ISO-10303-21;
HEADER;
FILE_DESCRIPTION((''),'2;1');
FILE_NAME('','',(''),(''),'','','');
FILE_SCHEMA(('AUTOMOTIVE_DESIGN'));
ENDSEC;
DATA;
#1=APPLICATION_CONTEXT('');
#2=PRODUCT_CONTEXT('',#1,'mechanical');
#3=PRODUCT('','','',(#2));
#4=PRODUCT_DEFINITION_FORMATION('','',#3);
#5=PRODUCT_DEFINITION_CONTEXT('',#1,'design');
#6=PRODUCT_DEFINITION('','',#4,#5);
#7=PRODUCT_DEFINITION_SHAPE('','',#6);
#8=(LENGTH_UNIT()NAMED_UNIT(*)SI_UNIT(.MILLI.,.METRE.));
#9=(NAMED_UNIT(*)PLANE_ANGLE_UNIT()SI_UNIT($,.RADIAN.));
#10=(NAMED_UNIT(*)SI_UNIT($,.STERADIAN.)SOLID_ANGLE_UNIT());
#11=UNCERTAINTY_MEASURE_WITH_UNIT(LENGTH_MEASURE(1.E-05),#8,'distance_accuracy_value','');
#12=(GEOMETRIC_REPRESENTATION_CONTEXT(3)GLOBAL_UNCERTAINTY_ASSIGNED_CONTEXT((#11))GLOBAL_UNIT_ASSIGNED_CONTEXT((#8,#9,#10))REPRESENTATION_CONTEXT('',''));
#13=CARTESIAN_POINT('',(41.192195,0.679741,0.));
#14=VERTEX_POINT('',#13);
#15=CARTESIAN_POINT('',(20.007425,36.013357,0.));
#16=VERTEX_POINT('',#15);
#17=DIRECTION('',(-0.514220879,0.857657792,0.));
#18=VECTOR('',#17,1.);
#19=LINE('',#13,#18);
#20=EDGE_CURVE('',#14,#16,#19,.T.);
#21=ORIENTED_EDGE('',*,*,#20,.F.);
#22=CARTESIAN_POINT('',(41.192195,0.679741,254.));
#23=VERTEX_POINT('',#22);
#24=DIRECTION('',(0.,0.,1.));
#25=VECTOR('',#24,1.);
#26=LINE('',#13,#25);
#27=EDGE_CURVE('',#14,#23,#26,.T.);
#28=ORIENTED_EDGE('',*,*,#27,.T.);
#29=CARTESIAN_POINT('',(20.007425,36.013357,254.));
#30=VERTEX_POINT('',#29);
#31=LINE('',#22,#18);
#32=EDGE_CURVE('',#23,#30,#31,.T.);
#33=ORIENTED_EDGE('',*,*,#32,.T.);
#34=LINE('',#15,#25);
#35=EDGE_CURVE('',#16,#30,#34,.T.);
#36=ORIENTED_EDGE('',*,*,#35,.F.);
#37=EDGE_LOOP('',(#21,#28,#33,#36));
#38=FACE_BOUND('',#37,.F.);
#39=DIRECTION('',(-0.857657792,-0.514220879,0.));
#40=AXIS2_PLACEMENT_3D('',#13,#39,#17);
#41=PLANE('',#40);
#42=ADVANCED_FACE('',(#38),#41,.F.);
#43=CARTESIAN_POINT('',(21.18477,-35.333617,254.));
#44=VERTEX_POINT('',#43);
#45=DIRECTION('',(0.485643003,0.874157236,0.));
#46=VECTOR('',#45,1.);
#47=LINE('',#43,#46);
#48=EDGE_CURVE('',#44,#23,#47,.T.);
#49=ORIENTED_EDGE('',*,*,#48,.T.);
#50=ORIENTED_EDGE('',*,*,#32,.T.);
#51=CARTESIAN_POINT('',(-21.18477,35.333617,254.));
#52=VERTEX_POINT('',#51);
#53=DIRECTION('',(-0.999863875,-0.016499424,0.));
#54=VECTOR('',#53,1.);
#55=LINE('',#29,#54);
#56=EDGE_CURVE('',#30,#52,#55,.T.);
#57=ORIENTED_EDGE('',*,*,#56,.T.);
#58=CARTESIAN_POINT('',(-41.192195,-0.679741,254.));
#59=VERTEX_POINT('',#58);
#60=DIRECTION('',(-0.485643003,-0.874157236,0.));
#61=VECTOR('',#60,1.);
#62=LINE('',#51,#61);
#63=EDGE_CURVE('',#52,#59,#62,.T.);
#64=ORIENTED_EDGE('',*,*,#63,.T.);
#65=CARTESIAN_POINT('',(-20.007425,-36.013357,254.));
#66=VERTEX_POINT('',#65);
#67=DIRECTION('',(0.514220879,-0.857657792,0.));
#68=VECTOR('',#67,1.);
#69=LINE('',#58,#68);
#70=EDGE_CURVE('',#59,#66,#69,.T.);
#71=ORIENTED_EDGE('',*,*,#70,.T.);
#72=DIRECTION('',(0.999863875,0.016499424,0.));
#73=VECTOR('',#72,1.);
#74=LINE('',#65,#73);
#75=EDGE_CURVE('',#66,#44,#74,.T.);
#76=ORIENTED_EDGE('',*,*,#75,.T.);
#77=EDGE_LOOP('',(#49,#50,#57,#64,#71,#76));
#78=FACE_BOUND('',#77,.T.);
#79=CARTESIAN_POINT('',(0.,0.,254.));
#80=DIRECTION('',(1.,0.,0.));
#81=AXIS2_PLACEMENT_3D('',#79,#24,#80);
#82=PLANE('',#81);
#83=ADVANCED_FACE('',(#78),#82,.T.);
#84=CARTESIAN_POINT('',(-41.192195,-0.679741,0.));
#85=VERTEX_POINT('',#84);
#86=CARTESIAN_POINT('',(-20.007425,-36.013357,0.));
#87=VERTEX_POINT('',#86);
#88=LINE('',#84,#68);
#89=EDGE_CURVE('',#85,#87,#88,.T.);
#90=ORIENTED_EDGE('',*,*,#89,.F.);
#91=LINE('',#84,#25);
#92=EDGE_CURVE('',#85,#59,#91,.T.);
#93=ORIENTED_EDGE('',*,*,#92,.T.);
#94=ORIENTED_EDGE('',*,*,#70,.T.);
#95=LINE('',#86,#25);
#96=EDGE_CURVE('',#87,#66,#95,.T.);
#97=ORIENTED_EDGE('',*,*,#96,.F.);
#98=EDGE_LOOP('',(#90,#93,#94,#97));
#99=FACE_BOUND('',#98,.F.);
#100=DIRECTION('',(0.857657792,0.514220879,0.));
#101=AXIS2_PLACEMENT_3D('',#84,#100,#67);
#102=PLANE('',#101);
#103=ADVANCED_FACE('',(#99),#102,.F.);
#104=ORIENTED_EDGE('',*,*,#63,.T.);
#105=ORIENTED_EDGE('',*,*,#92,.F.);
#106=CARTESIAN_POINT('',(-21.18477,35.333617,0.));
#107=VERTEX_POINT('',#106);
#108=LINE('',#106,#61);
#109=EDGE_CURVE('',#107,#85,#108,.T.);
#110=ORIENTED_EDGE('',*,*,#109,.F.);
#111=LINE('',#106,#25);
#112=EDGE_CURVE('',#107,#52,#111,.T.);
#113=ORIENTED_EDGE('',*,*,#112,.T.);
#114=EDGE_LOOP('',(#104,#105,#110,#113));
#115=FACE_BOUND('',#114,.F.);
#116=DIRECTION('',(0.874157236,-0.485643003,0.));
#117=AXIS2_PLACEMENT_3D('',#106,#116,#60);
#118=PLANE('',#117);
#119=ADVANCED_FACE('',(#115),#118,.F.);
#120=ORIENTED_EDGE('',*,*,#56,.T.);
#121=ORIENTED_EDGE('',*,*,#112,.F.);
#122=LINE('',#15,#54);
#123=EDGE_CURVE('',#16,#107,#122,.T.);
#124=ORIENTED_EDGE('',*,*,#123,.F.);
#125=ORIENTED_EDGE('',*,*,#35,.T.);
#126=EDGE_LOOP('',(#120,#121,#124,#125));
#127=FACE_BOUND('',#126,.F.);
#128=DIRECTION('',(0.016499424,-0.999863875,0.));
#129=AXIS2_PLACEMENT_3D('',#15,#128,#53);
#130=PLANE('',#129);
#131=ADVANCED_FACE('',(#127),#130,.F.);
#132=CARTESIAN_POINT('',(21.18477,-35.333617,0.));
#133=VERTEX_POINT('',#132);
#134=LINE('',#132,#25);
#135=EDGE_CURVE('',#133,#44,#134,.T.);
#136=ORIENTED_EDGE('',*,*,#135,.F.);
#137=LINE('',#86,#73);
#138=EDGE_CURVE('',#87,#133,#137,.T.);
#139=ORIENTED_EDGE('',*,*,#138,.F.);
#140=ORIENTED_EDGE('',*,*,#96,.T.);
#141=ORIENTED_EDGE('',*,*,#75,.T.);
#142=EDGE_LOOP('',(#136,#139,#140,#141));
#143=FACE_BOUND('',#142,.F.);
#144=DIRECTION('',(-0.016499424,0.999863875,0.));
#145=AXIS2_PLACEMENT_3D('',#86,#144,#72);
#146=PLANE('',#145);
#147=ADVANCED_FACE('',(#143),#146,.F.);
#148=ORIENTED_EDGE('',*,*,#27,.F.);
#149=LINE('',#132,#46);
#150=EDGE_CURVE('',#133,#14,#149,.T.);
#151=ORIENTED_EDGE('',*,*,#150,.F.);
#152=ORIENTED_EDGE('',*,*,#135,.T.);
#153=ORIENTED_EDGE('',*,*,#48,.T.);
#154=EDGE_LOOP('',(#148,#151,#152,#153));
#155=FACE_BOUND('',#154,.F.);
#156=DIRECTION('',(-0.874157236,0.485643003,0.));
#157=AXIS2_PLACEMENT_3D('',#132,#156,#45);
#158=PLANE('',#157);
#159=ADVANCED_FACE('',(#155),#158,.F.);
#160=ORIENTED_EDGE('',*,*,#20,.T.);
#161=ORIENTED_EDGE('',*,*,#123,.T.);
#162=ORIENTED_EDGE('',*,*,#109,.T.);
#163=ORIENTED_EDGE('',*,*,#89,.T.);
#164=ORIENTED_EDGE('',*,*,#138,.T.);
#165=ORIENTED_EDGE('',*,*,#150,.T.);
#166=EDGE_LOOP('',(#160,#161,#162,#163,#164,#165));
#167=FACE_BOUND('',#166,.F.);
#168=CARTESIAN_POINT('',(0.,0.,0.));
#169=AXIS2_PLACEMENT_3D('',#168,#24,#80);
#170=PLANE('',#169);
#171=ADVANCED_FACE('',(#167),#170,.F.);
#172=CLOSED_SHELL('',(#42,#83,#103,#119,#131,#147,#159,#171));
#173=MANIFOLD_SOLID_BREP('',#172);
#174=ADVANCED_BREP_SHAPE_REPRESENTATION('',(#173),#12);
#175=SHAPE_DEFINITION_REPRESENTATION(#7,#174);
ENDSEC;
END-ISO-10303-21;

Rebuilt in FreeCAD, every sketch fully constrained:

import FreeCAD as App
import Part
import Sketcher
from FreeCAD import Vector
Q = App.Units.Quantity

doc = App.newDocument("Part")
body = doc.addObject("PartDesign::Body", "Body")

# Sketch on XY plane
sketch1 = doc.addObject("Sketcher::SketchObject", "Sketch")
body.addObject(sketch1)
sketch1.AttachmentSupport = (doc.XY_Plane, [""])
sketch1.MapMode = "FlatFace"
sketch1.addGeometry(Part.LineSegment(Vector(-21, 35, 0), Vector(-41, -1, 0)), False)
sketch1.addGeometry(Part.LineSegment(Vector(-41, -1, 0), Vector(-20, -36, 0)), False)
sketch1.addGeometry(Part.LineSegment(Vector(-20, -36, 0), Vector(21, -35, 0)), False)
sketch1.addGeometry(Part.LineSegment(Vector(21, -35, 0), Vector(41, 1, 0)), False)
sketch1.addGeometry(Part.LineSegment(Vector(41, 1, 0), Vector(20, 36, 0)), False)
sketch1.addGeometry(Part.LineSegment(Vector(20, 36, 0), Vector(-21, 35, 0)), False)
sketch1.addConstraint(Sketcher.Constraint("Coincident", 0, 2, 1, 1))
sketch1.addConstraint(Sketcher.Constraint("Coincident", 1, 2, 2, 1))
sketch1.addConstraint(Sketcher.Constraint("Coincident", 2, 2, 3, 1))
sketch1.addConstraint(Sketcher.Constraint("Coincident", 3, 2, 4, 1))
sketch1.addConstraint(Sketcher.Constraint("Coincident", 4, 2, 5, 1))
sketch1.addConstraint(Sketcher.Constraint("Coincident", 5, 2, 0, 1))
sketch1.addConstraint(Sketcher.Constraint("Symmetric", 0, 2, 3, 2, -1, 1))
sketch1.addConstraint(Sketcher.Constraint("Symmetric", 1, 2, 4, 2, -1, 1))
sketch1.addConstraint(Sketcher.Constraint("Symmetric", 2, 2, 5, 2, -1, 1))
sketch1.addConstraint(Sketcher.Constraint("Equal", 0, 1))
sketch1.addConstraint(Sketcher.Constraint("Equal", 1, 2))
sketch1.addConstraint(Sketcher.Constraint("DistanceY", 0, 2, -1, 1, Q("0.679741 mm")))
sketch1.addConstraint(Sketcher.Constraint("DistanceX", -1, 1, 2, 2, Q("21.18477 mm")))
sketch1.addConstraint(Sketcher.Constraint("DistanceX", 0, 2, 1, 2, Q("21.18477 mm")))
sketch1.addConstraint(Sketcher.Constraint("DistanceY", 1, 2, 2, 2, Q("0.67974 mm")))
pad1 = doc.addObject("PartDesign::Pad", "Pad")
body.addObject(pad1)
pad1.Profile = sketch1
pad1.Length = Q("10 in")

# Sketch on XY plane
sketch2 = doc.addObject("Sketcher::SketchObject", "Sketch001")
body.addObject(sketch2)
sketch2.AttachmentSupport = (doc.XY_Plane, [""])
sketch2.MapMode = "FlatFace"
sketch2.AttachmentOffset = App.Placement(Vector(0, 0, 10 * 25.4), App.Rotation())
sketch2.addGeometry(Part.Circle(Vector(0, 0, 0), Vector(0, 0, 1), 24), False)
sketch2.addConstraint(Sketcher.Constraint("Coincident", 0, 3, -1, 1))
sketch2.addConstraint(Sketcher.Constraint("Diameter", 0, Q("47.044454 mm")))
pad2 = doc.addObject("PartDesign::Pad", "Pad001")
body.addObject(pad2)
pad2.Profile = sketch2
pad2.Length = Q("4.4 in")
pad2.Reversed = True

doc.recompute()
